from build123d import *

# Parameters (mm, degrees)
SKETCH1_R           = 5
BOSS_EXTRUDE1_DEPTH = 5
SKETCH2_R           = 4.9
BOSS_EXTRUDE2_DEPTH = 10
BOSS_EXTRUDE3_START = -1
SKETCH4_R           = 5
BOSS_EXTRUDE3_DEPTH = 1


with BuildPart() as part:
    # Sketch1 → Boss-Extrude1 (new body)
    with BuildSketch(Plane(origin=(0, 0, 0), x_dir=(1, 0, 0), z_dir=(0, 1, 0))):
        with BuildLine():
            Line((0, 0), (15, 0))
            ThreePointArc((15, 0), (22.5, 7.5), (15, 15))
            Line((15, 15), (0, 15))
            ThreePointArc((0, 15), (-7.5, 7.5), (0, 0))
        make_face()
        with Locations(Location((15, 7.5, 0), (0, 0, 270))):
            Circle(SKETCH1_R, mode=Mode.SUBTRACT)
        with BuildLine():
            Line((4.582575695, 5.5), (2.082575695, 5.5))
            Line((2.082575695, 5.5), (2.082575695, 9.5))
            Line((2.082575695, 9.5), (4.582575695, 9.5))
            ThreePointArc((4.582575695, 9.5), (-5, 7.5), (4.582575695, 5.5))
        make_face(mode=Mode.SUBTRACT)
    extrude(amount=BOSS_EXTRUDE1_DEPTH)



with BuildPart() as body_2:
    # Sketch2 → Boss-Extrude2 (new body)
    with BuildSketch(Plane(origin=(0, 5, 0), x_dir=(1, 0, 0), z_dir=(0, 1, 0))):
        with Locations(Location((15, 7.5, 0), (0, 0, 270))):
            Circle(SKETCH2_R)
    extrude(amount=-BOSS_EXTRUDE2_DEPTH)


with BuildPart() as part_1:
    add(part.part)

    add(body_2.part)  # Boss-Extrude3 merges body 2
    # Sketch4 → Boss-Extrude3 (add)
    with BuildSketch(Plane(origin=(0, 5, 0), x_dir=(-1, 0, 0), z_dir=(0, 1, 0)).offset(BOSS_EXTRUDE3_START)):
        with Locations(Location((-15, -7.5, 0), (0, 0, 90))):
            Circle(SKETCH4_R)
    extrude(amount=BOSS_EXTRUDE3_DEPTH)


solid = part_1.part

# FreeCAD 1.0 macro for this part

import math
import FreeCAD as App
import Part
import Sketcher
Q = App.Units.Quantity

doc = App.newDocument("Part")
body = doc.addObject("PartDesign::Body", "Body")

# Sketch on XZ plane
sketch1 = doc.addObject("Sketcher::SketchObject", "Sketch")
body.addObject(sketch1)
sketch1.AttachmentSupport = (doc.XZ_Plane, [""])
sketch1.MapMode = "FlatFace"
sketch1.addGeometry([
    Part.LineSegment(App.Vector(0, 0, 0), App.Vector(15, 0, 0)),  # 0
    Part.ArcOfCircle(Part.Circle(App.Vector(15, -7.5, 0), App.Vector(0, 0, 1), 7.5), math.radians(-90), math.radians(90)),  # 1
    Part.LineSegment(App.Vector(15, -15, 0), App.Vector(0, -15, 0)),  # 2
    Part.ArcOfCircle(Part.Circle(App.Vector(0, -7.5, 0), App.Vector(0, 0, 1), 7.5), math.radians(90), math.radians(270)),  # 3
    Part.LineSegment(App.Vector(2.082576, -5.5, 0), App.Vector(4.582576, -5.5, 0)),  # 4
    Part.ArcOfCircle(Part.Circle(App.Vector(0, -7.5, 0), App.Vector(0, 0, 1), 5), math.radians(23.578178), math.radians(336.421822)),  # 5
    Part.LineSegment(App.Vector(4.582576, -9.5, 0), App.Vector(2.082576, -9.5, 0)),  # 6
    Part.LineSegment(App.Vector(2.082576, -9.5, 0), App.Vector(2.082576, -5.5, 0)),  # 7
    Part.Circle(App.Vector(15, -7.5, 0), App.Vector(0, 0, 1), 5),  # 8
], False)
sketch1.addConstraint([
    Sketcher.Constraint("Tangent", 0, 2, 1, 2),
    Sketcher.Constraint("Tangent", 1, 1, 2, 1),
    Sketcher.Constraint("Tangent", 2, 2, 3, 2),
    Sketcher.Constraint("Tangent", 3, 1, 0, 1),
    Sketcher.Constraint("Coincident", 4, 2, 5, 1),
    Sketcher.Constraint("Coincident", 5, 2, 6, 1),
    Sketcher.Constraint("Coincident", 6, 2, 7, 1),
    Sketcher.Constraint("Coincident", 7, 2, 4, 1),
    Sketcher.Constraint("Horizontal", 0),
    Sketcher.Constraint("Horizontal", 2),
    Sketcher.Constraint("Horizontal", 4),
    Sketcher.Constraint("Horizontal", 6),
    Sketcher.Constraint("Vertical", 7),
    Sketcher.Constraint("Coincident", 3, 1, -1, 1),
    Sketcher.Constraint("Coincident", 5, 3, 3, 3),
    Sketcher.Constraint("Coincident", 8, 3, 1, 3),
    Sketcher.Constraint("Equal", 5, 8),
    Sketcher.Constraint("Vertical", 4, 2, 5, 2),
    Sketcher.Constraint("Diameter", 8, Q("10 mm")),
    Sketcher.Constraint("Radius", 1, Q("7.5 mm")),
    Sketcher.Constraint("DistanceX", 0, 1, 0, 2, Q("15 mm")),
    Sketcher.Constraint("DistanceY", 7, 1, 7, 2, Q("4 mm")),
    Sketcher.Constraint("DistanceX", 4, 1, 4, 2, Q("2.5 mm")),
])
pad1 = doc.addObject("PartDesign::Pad", "Pad")
body.addObject(pad1)
pad1.Profile = sketch1
pad1.Length = 5
pad1.Reversed = True
body2 = doc.addObject("PartDesign::Body", "Body001")

# Sketch on XZ plane
sketch2 = doc.addObject("Sketcher::SketchObject", "Sketch001")
body2.addObject(sketch2)
sketch2.AttachmentSupport = (doc.getObject("XZ_Plane001"), [""])
sketch2.MapMode = "FlatFace"
sketch2.AttachmentOffset = App.Placement(App.Vector(0, 0, -5), App.Rotation())
sketch2.addGeometry(Part.Circle(App.Vector(15, -7.5, 0), App.Vector(0, 0, 1), 4.9), False)
sketch2.addConstraint([
    Sketcher.Constraint("Diameter", 0, Q("9.8 mm")),
    Sketcher.Constraint("DistanceX", -1, 1, 0, 3, Q("15 mm")),
    Sketcher.Constraint("DistanceY", 0, 3, -1, 1, Q("7.5 mm")),
])
pad2 = doc.addObject("PartDesign::Pad", "Pad001")
body2.addObject(pad2)
pad2.Profile = sketch2
pad2.Length = 10
body.AllowCompound = True
doc.recompute()

boolean = doc.addObject("PartDesign::Boolean", "Boolean")
body.addObject(boolean)
boolean.Type = "Fuse"
boolean.addObjects([body2])

# Sketch on XZ plane
sketch3 = doc.addObject("Sketcher::SketchObject", "Sketch002")
body.addObject(sketch3)
sketch3.AttachmentSupport = (doc.XZ_Plane, [""])
sketch3.MapMode = "FlatFace"
sketch3.AttachmentOffset = App.Placement(App.Vector(0, 0, -4), App.Rotation())
sketch3.addGeometry(Part.Circle(App.Vector(15, -7.5, 0), App.Vector(0, 0, 1), 5), False)
sketch3.addConstraint([
    Sketcher.Constraint("Diameter", 0, Q("10 mm")),
    Sketcher.Constraint("DistanceX", -1, 1, 0, 3, Q("15 mm")),
    Sketcher.Constraint("DistanceY", 0, 3, -1, 1, Q("7.5 mm")),
])
pad3 = doc.addObject("PartDesign::Pad", "Pad002")
body.addObject(pad3)
pad3.Profile = sketch3
pad3.Length = 1
pad3.Reversed = True

doc.recompute()
